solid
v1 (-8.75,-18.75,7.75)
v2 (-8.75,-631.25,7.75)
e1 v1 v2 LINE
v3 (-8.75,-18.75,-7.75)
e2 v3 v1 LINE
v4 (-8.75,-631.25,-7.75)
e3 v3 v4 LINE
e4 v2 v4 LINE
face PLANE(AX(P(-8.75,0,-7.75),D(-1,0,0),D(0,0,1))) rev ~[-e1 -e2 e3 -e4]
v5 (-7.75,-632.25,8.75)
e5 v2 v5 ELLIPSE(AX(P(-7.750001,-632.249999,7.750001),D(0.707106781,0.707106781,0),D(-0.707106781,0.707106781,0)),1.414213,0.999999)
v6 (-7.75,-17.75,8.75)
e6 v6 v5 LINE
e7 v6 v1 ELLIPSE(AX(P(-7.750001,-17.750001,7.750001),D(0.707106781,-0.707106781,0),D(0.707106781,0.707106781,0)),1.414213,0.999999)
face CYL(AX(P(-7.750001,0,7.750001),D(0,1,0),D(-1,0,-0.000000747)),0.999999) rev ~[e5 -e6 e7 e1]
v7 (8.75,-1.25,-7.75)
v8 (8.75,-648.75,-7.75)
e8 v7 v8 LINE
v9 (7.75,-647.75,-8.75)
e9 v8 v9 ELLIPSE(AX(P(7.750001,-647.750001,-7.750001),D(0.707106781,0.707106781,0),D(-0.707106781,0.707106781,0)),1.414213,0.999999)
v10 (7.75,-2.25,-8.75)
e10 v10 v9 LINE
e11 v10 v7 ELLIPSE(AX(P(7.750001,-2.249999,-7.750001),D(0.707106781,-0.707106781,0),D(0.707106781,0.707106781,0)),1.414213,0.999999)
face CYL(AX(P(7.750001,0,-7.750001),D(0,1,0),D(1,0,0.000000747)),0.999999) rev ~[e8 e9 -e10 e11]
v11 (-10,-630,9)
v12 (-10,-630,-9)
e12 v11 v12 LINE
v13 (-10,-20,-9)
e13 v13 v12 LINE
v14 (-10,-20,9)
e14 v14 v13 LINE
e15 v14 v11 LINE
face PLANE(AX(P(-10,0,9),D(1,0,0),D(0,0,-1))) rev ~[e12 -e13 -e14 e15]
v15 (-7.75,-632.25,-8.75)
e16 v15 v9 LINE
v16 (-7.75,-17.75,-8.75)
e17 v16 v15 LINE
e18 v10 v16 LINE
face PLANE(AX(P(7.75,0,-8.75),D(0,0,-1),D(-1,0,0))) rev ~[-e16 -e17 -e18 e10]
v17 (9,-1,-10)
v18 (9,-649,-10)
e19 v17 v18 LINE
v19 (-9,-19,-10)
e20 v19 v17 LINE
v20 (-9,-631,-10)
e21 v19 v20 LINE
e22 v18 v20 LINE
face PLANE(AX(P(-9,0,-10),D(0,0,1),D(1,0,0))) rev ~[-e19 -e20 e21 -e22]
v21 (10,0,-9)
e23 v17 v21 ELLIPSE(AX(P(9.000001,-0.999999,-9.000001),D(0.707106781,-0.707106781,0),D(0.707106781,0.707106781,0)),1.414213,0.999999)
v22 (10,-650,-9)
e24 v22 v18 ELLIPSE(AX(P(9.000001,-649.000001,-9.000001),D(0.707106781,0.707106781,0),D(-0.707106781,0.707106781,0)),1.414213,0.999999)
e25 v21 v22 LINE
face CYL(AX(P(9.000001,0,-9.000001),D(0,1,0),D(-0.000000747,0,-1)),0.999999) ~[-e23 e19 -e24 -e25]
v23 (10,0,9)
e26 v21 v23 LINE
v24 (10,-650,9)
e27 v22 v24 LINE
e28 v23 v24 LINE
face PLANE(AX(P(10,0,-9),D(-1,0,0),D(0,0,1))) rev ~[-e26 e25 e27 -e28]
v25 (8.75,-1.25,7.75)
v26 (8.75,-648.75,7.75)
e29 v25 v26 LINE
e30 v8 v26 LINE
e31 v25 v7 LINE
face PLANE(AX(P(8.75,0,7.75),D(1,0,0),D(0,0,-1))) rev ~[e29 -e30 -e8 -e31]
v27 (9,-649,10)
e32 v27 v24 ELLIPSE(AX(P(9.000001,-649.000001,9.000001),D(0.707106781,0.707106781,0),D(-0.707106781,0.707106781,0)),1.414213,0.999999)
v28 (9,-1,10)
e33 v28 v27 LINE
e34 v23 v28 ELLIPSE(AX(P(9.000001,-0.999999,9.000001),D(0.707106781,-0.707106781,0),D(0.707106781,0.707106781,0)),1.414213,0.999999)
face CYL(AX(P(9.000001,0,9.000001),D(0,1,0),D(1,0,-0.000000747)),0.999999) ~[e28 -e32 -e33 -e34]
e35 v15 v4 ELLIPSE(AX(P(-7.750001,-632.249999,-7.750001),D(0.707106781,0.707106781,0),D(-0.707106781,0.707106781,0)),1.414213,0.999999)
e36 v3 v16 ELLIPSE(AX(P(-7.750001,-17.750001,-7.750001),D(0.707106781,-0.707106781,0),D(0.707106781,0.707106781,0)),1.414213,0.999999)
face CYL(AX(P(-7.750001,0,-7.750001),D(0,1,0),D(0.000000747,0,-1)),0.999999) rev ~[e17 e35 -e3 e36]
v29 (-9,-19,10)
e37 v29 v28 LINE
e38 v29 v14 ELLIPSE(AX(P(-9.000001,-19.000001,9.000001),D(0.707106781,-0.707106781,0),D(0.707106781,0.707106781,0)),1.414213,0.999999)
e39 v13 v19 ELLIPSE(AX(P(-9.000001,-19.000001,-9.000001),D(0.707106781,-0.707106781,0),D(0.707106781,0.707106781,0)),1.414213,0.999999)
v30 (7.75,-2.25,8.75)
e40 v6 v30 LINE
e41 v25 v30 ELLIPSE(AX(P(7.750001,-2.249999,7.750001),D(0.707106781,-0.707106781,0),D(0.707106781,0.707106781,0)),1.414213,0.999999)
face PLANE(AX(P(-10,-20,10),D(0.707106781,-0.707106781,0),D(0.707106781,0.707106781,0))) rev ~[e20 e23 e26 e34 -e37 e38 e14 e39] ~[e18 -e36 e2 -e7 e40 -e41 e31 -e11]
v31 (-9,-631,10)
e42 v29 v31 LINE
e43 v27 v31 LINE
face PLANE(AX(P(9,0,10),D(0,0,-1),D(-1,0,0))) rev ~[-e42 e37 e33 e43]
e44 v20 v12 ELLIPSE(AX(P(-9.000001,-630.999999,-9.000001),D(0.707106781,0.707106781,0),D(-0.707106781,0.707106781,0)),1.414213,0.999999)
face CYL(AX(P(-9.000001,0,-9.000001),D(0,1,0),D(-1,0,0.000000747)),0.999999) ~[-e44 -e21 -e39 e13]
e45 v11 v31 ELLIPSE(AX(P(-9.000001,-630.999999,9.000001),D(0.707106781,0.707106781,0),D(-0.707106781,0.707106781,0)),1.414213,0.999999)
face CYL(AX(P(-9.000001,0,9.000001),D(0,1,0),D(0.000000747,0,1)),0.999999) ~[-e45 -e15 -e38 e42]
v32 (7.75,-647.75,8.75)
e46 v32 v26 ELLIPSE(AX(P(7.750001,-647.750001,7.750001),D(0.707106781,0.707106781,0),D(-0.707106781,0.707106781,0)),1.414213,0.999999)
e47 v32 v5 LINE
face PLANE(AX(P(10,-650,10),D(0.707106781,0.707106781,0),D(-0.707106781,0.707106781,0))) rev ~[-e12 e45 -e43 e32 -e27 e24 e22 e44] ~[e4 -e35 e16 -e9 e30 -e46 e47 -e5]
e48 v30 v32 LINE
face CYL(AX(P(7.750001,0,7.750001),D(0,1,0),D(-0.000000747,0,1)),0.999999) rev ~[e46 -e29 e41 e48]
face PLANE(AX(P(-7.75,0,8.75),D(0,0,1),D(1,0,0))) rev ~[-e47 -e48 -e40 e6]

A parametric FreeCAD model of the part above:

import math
import FreeCAD as App
import Part
import Sketcher

doc = App.newDocument("Part")
body = doc.addObject("PartDesign::Body", "Body")

# Sketch on XZ plane
sketch1 = body.newObject("Sketcher::SketchObject", "Sketch")
sketch1.AttachmentSupport = (doc.getObject("XZ_Plane"), [""])
sketch1.MapMode = "FlatFace"
sketch1.addGeometry(Part.LineSegment(App.Vector(9, 10, 0), App.Vector(-9, 10, 0)), False)
sketch1.addGeometry(Part.ArcOfCircle(Part.Circle(App.Vector(-9, 9, 0), App.Vector(0, 0, 1), 1), math.radians(90), math.radians(180)), False)
sketch1.addGeometry(Part.LineSegment(App.Vector(-10, 9, 0), App.Vector(-10, -9, 0)), False)
sketch1.addGeometry(Part.ArcOfCircle(Part.Circle(App.Vector(-9, -9, 0), App.Vector(0, 0, 1), 1), math.radians(180), math.radians(270)), False)
sketch1.addGeometry(Part.LineSegment(App.Vector(-9, -10, 0), App.Vector(9, -10, 0)), False)
sketch1.addGeometry(Part.ArcOfCircle(Part.Circle(App.Vector(9, -9, 0), App.Vector(0, 0, 1), 1), math.radians(-90), math.radians(0)), False)
sketch1.addGeometry(Part.LineSegment(App.Vector(10, -9, 0), App.Vector(10, 9, 0)), False)
sketch1.addGeometry(Part.ArcOfCircle(Part.Circle(App.Vector(9, 9, 0), App.Vector(0, 0, 1), 1), math.radians(0), math.radians(90)), False)
sketch1.addGeometry(Part.LineSegment(App.Vector(-8.8, -7.8, 0), App.Vector(-8.8, 7.8, 0)), False)
sketch1.addGeometry(Part.ArcOfCircle(Part.Circle(App.Vector(-7.8, 7.8, 0), App.Vector(0, 0, 1), 1), math.radians(90), math.radians(180)), False)
sketch1.addGeometry(Part.LineSegment(App.Vector(-7.8, 8.8, 0), App.Vector(7.8, 8.8, 0)), False)
sketch1.addGeometry(Part.ArcOfCircle(Part.Circle(App.Vector(7.8, 7.8, 0), App.Vector(0, 0, 1), 1), math.radians(0), math.radians(90)), False)
sketch1.addGeometry(Part.LineSegment(App.Vector(8.8, 7.8, 0), App.Vector(8.8, -7.8, 0)), False)
sketch1.addGeometry(Part.ArcOfCircle(Part.Circle(App.Vector(7.8, -7.8, 0), App.Vector(0, 0, 1), 1), math.radians(-90), math.radians(0)), False)
sketch1.addGeometry(Part.LineSegment(App.Vector(7.8, -8.8, 0), App.Vector(-7.8, -8.8, 0)), False)
sketch1.addGeometry(Part.ArcOfCircle(Part.Circle(App.Vector(-7.8, -7.8, 0), App.Vector(0, 0, 1), 1), math.radians(180), math.radians(270)), False)
sketch1.addConstraint(Sketcher.Constraint("Tangent", 0, 2, 1, 1))
sketch1.addConstraint(Sketcher.Constraint("Tangent", 1, 2, 2, 1))
sketch1.addConstraint(Sketcher.Constraint("Tangent", 2, 2, 3, 1))
sketch1.addConstraint(Sketcher.Constraint("Tangent", 3, 2, 4, 1))
sketch1.addConstraint(Sketcher.Constraint("Tangent", 4, 2, 5, 1))
sketch1.addConstraint(Sketcher.Constraint("Tangent", 5, 2, 6, 1))
sketch1.addConstraint(Sketcher.Constraint("Tangent", 6, 2, 7, 1))
sketch1.addConstraint(Sketcher.Constraint("Tangent", 7, 2, 0, 1))
sketch1.addConstraint(Sketcher.Constraint("Tangent", 8, 2, 9, 2))
sketch1.addConstraint(Sketcher.Constraint("Tangent", 9, 1, 10, 1))
sketch1.addConstraint(Sketcher.Constraint("Tangent", 10, 2, 11, 2))
sketch1.addConstraint(Sketcher.Constraint("Tangent", 11, 1, 12, 1))
sketch1.addConstraint(Sketcher.Constraint("Tangent", 12, 2, 13, 2))
sketch1.addConstraint(Sketcher.Constraint("Tangent", 13, 1, 14, 1))
sketch1.addConstraint(Sketcher.Constraint("Tangent", 14, 2, 15, 2))
sketch1.addConstraint(Sketcher.Constraint("Tangent", 15, 1, 8, 1))
sketch1.addConstraint(Sketcher.Constraint("Horizontal", 0))
sketch1.addConstraint(Sketcher.Constraint("Vertical", 2))
sketch1.addConstraint(Sketcher.Constraint("Horizontal", 4))
sketch1.addConstraint(Sketcher.Constraint("Vertical", 6))
sketch1.addConstraint(Sketcher.Constraint("Vertical", 8))
sketch1.addConstraint(Sketcher.Constraint("Horizontal", 10))
sketch1.addConstraint(Sketcher.Constraint("Vertical", 12))
sketch1.addConstraint(Sketcher.Constraint("Horizontal", 14))
sketch1.addConstraint(Sketcher.Constraint("Equal", 1, 3))
sketch1.addConstraint(Sketcher.Constraint("Equal", 3, 5))
sketch1.addConstraint(Sketcher.Constraint("Equal", 5, 7))
sketch1.addConstraint(Sketcher.Constraint("Equal", 7, 9))
sketch1.addConstraint(Sketcher.Constraint("Equal", 9, 11))
sketch1.addConstraint(Sketcher.Constraint("Equal", 11, 13))
sketch1.addConstraint(Sketcher.Constraint("Equal", 13, 15))
sketch1.addConstraint(Sketcher.Constraint("Symmetric", 1, 3, 5, 3, -1, 1))
sketch1.addConstraint(Sketcher.Constraint("Symmetric", 9, 3, 13, 3, -1, 1))
sketch1.addConstraint(Sketcher.Constraint("Equal", 4, 2))
sketch1.addConstraint(Sketcher.Constraint("Equal", 14, 8))
sketch1.addConstraint(Sketcher.Constraint("Radius", 1, 0.999999))
sketch1.addConstraint(Sketcher.Constraint("DistanceX", 0, 2, 0, 1, 18.0))
sketch1.addConstraint(Sketcher.Constraint("DistanceX", 10, 1, 10, 2, 15.5))
pad1 = body.newObject("PartDesign::Pad", "Pad")
pad1.Profile = sketch1
pad1.Length = 650

# Sketch on XY plane
sketch2 = body.newObject("Sketcher::SketchObject", "Sketch001")
sketch2.AttachmentSupport = (doc.getObject("XY_Plane"), [""])
sketch2.MapMode = "FlatFace"
sketch2.AttachmentOffset = App.Placement(App.Vector(0, 0, 10), App.Rotation())
sketch2.addGeometry(Part.LineSegment(App.Vector(-10, -630, 0), App.Vector(-10, -650, 0)), False)
sketch2.addGeometry(Part.LineSegment(App.Vector(-10, -650, 0), App.Vector(10, -650, 0)), False)
sketch2.addGeometry(Part.LineSegment(App.Vector(10, -650, 0), App.Vector(-10, -630, 0)), False)
sketch2.addGeometry(Part.LineSegment(App.Vector(10, 0, 0), App.Vector(-10, 0, 0)), False)
sketch2.addGeometry(Part.LineSegment(App.Vector(-10, 0, 0), App.Vector(-10, -20, 0)), False)
sketch2.addGeometry(Part.LineSegment(App.Vector(-10, -20, 0), App.Vector(10, 0, 0)), False)
sketch2.addConstraint(Sketcher.Constraint("Coincident", 0, 2, 1, 1))
sketch2.addConstraint(Sketcher.Constraint("Coincident", 1, 2, 2, 1))
sketch2.addConstraint(Sketcher.Constraint("Coincident", 2, 2, 0, 1))
sketch2.addConstraint(Sketcher.Constraint("Coincident", 3, 2, 4, 1))
sketch2.addConstraint(Sketcher.Constraint("Coincident", 4, 2, 5, 1))
sketch2.addConstraint(Sketcher.Constraint("Coincident", 5, 2, 3, 1))
sketch2.addConstraint(Sketcher.Constraint("Vertical", 0))
sketch2.addConstraint(Sketcher.Constraint("Horizontal", 1))
sketch2.addConstraint(Sketcher.Constraint("Horizontal", 3))
sketch2.addConstraint(Sketcher.Constraint("Vertical", 4))
sketch2.addConstraint(Sketcher.Constraint("Symmetric", 3, 2, 5, 2, -1, 1))
sketch2.addConstraint(Sketcher.Constraint("Perpendicular", 2, 5))
sketch2.addConstraint(Sketcher.Constraint("Vertical", 2, 2, 3, 2))
sketch2.addConstraint(Sketcher.Constraint("Vertical", 1, 2, 5, 2))
sketch2.addConstraint(Sketcher.Constraint("Equal", 3, 0))
sketch2.addConstraint(Sketcher.Constraint("DistanceX", 1, 1, 1, 2, 20.0))
sketch2.addConstraint(Sketcher.Constraint("DistanceY", 0, 2, -1, 1, 650.0))
pocket1 = body.newObject("PartDesign::Pocket", "Pocket")
pocket1.Profile = sketch2
pocket1.Length = 20

doc.recompute()
